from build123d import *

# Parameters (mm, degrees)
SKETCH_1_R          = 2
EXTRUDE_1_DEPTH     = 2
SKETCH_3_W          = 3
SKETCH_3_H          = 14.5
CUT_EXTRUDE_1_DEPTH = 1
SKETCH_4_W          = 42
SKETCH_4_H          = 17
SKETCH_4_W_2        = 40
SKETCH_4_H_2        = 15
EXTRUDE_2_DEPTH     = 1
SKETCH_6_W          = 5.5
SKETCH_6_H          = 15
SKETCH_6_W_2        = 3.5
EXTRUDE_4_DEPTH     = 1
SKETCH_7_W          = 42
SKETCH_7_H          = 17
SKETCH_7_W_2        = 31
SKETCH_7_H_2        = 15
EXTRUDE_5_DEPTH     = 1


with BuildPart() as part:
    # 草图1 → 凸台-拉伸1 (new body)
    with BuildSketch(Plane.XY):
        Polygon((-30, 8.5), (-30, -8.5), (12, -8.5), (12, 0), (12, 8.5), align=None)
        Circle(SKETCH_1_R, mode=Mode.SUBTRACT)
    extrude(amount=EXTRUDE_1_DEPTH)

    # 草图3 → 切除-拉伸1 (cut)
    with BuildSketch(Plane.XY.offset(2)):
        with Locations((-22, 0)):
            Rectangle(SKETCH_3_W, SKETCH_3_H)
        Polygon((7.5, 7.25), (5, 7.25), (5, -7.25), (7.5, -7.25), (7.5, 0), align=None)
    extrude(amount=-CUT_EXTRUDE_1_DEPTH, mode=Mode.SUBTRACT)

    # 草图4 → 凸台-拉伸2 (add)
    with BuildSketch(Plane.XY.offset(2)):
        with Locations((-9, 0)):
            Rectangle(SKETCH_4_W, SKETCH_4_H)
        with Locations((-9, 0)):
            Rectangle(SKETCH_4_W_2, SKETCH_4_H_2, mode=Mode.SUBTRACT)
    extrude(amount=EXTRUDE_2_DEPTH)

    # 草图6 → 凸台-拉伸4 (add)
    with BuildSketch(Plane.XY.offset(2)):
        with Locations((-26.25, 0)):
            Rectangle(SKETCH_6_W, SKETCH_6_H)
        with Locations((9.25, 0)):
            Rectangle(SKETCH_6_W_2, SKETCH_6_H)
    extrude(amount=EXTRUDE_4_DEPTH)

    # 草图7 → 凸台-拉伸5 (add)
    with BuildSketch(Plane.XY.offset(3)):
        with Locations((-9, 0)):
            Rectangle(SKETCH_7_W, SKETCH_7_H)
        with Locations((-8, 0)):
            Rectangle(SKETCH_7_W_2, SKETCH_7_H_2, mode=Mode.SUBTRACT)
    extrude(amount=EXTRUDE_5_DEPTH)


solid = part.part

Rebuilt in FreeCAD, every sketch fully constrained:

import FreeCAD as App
import Part
import Sketcher

V = App.Vector

doc = App.newDocument("Part")
body = doc.addObject("PartDesign::Body", "Body")

sketch1 = body.newObject("Sketcher::SketchObject", "Sketch")
sketch1.AttachmentSupport = (doc.getObject("XY_Plane"), [""])
sketch1.MapMode = "FlatFace"
sketch1.addGeometry([
    Part.LineSegment(V(-30, 8.5, 0), V(-30, -8.5, 0)),
    Part.LineSegment(V(-30, -8.5, 0), V(12, -8.5, 0)),
    Part.LineSegment(V(12, -8.5, 0), V(12, 8.5, 0)),
    Part.LineSegment(V(12, 8.5, 0), V(-30, 8.5, 0)),
    Part.Circle(V(0, 0, 0), V(0, 0, 1), 2),
], False)
sketch1.addConstraint([
    Sketcher.Constraint("Coincident", 0, 2, 1, 1),
    Sketcher.Constraint("Coincident", 1, 2, 2, 1),
    Sketcher.Constraint("Coincident", 2, 2, 3, 1),
    Sketcher.Constraint("Coincident", 3, 2, 0, 1),
    Sketcher.Constraint("Vertical", 0),
    Sketcher.Constraint("Horizontal", 1),
    Sketcher.Constraint("Vertical", 2),
    Sketcher.Constraint("Horizontal", 3),
    Sketcher.Constraint("Coincident", 4, 3, -1, 1),
    Sketcher.Constraint("Diameter", 4, 4.0),
    Sketcher.Constraint("DistanceX", 1, 1, 1, 2, 42.0),
    Sketcher.Constraint("DistanceY", 0, 2, 0, 1, 17.0),
    Sketcher.Constraint("DistanceX", 0, 2, -1, 1, 30.0),
    Sketcher.Constraint("DistanceY", 0, 2, -1, 1, 8.5),
])
pad1 = body.newObject("PartDesign::Pad", "Pad")
pad1.Profile = sketch1
pad1.Length = 2

sketch2 = body.newObject("Sketcher::SketchObject", "Sketch001")
sketch2.AttachmentSupport = (doc.getObject("XY_Plane"), [""])
sketch2.MapMode = "FlatFace"
sketch2.AttachmentOffset = App.Placement(V(0, 0, 2), App.Rotation())
sketch2.addGeometry([
    Part.LineSegment(V(-23.5, 7.2, 0), V(-23.5, -7.2, 0)),
    Part.LineSegment(V(-23.5, -7.2, 0), V(-20.5, -7.2, 0)),
    Part.LineSegment(V(-20.5, -7.2, 0), V(-20.5, 7.2, 0)),
    Part.LineSegment(V(-20.5, 7.2, 0), V(-23.5, 7.2, 0)),
    Part.LineSegment(V(7.5, 7.2, 0), V(5, 7.2, 0)),
    Part.LineSegment(V(5, 7.2, 0), V(5, -7.2, 0)),
    Part.LineSegment(V(5, -7.2, 0), V(7.5, -7.2, 0)),
    Part.LineSegment(V(7.5, -7.2, 0), V(7.5, 7.2, 0)),
], False)
sketch2.addConstraint([
    Sketcher.Constraint("Coincident", 0, 2, 1, 1),
    Sketcher.Constraint("Coincident", 1, 2, 2, 1),
    Sketcher.Constraint("Coincident", 2, 2, 3, 1),
    Sketcher.Constraint("Coincident", 3, 2, 0, 1),
    Sketcher.Constraint("Coincident", 4, 2, 5, 1),
    Sketcher.Constraint("Coincident", 5, 2, 6, 1),
    Sketcher.Constraint("Coincident", 6, 2, 7, 1),
    Sketcher.Constraint("Coincident", 7, 2, 4, 1),
    Sketcher.Constraint("Vertical", 0),
    Sketcher.Constraint("Horizontal", 1),
    Sketcher.Constraint("Vertical", 2),
    Sketcher.Constraint("Horizontal", 3),
    Sketcher.Constraint("Horizontal", 4),
    Sketcher.Constraint("Vertical", 5),
    Sketcher.Constraint("Horizontal", 6),
    Sketcher.Constraint("Vertical", 7),
    Sketcher.Constraint("Horizontal", 3, 2, 4, 2),
    Sketcher.Constraint("Horizontal", 1, 2, 5, 2),
    Sketcher.Constraint("DistanceX", 1, 1, 1, 2, 3.0),
    Sketcher.Constraint("DistanceX", 4, 2, 4, 1, 2.5),
    Sketcher.Constraint("DistanceY", 0, 2, 0, 1, 14.5),
    Sketcher.Constraint("DistanceX", -1, 1, 4, 2, 5.0),
    Sketcher.Constraint("DistanceX", 1, 2, 6, 2, 28.0),
    Sketcher.Constraint("DistanceY", 0, 2, -1, 1, 7.25),
])
pocket1 = body.newObject("PartDesign::Pocket", "Pocket")
pocket1.Profile = sketch2
pocket1.Length = 1

sketch3 = body.newObject("Sketcher::SketchObject", "Sketch002")
sketch3.AttachmentSupport = (doc.getObject("XY_Plane"), [""])
sketch3.MapMode = "FlatFace"
sketch3.AttachmentOffset = App.Placement(V(0, 0, 2), App.Rotation())
sketch3.addGeometry([
    Part.LineSegment(V(-30, 8, 0), V(-30, -8, 0)),
    Part.LineSegment(V(-30, -8, 0), V(12, -8, 0)),
    Part.LineSegment(V(12, -8, 0), V(12, 8, 0)),
    Part.LineSegment(V(12, 8, 0), V(-30, 8, 0)),
    Part.LineSegment(V(11, -8, 0), V(-29, -8, 0)),
    Part.LineSegment(V(-29, -8, 0), V(-29, 8, 0)),
    Part.LineSegment(V(-29, 8, 0), V(11, 8, 0)),
    Part.LineSegment(V(11, 8, 0), V(11, -8, 0)),
], False)
sketch3.addConstraint([
    Sketcher.Constraint("Coincident", 0, 2, 1, 1),
    Sketcher.Constraint("Coincident", 1, 2, 2, 1),
    Sketcher.Constraint("Coincident", 2, 2, 3, 1),
    Sketcher.Constraint("Coincident", 3, 2, 0, 1),
    Sketcher.Constraint("Coincident", 4, 2, 5, 1),
    Sketcher.Constraint("Coincident", 5, 2, 6, 1),
    Sketcher.Constraint("Coincident", 6, 2, 7, 1),
    Sketcher.Constraint("Coincident", 7, 2, 4, 1),
    Sketcher.Constraint("Vertical", 0),
    Sketcher.Constraint("Horizontal", 1),
    Sketcher.Constraint("Vertical", 2),
    Sketcher.Constraint("Horizontal", 3),
    Sketcher.Constraint("Horizontal", 4),
    Sketcher.Constraint("Vertical", 5),
    Sketcher.Constraint("Horizontal", 6),
    Sketcher.Constraint("Vertical", 7),
    Sketcher.Constraint("DistanceX", 1, 1, 1, 2, 42.0),
    Sketcher.Constraint("DistanceX", 4, 2, 4, 1, 40.0),
    Sketcher.Constraint("DistanceY", 0, 2, 0, 1, 17.0),
    Sketcher.Constraint("DistanceY", 5, 1, 5, 2, 15.0),
    Sketcher.Constraint("DistanceX", 0, 2, -1, 1, 30.0),
    Sketcher.Constraint("DistanceX", 4, 2, -1, 1, 29.0),
    Sketcher.Constraint("DistanceY", 0, 2, 4, 2, 1.0),
    Sketcher.Constraint("DistanceY", 0, 2, -1, 1, 8.5),
])
pad2 = body.newObject("PartDesign::Pad", "Pad001")
pad2.Profile = sketch3
pad2.Length = 1

sketch4 = body.newObject("Sketcher::SketchObject", "Sketch003")
sketch4.AttachmentSupport = (doc.getObject("XY_Plane"), [""])
sketch4.MapMode = "FlatFace"
sketch4.AttachmentOffset = App.Placement(V(0, 0, 2), App.Rotation())
sketch4.addGeometry([
    Part.LineSegment(V(-29, 7.5, 0), V(-29, -7.5, 0)),
    Part.LineSegment(V(-29, -7.5, 0), V(-23.5, -7.5, 0)),
    Part.LineSegment(V(-23.5, -7.5, 0), V(-23.5, 7.5, 0)),
    Part.LineSegment(V(-23.5, 7.5, 0), V(-29, 7.5, 0)),
    Part.LineSegment(V(7.5, 7.5, 0), V(7.5, -7.5, 0)),
    Part.LineSegment(V(7.5, -7.5, 0), V(11, -7.5, 0)),
    Part.LineSegment(V(11, -7.5, 0), V(11, 7.5, 0)),
    Part.LineSegment(V(11, 7.5, 0), V(7.5, 7.5, 0)),
], False)
sketch4.addConstraint([
    Sketcher.Constraint("Coincident", 0, 2, 1, 1),
    Sketcher.Constraint("Coincident", 1, 2, 2, 1),
    Sketcher.Constraint("Coincident", 2, 2, 3, 1),
    Sketcher.Constraint("Coincident", 3, 2, 0, 1),
    Sketcher.Constraint("Coincident", 4, 2, 5, 1),
    Sketcher.Constraint("Coincident", 5, 2, 6, 1),
    Sketcher.Constraint("Coincident", 6, 2, 7, 1),
    Sketcher.Constraint("Coincident", 7, 2, 4, 1),
    Sketcher.Constraint("Vertical", 0),
    Sketcher.Constraint("Horizontal", 1),
    Sketcher.Constraint("Vertical", 2),
    Sketcher.Constraint("Horizontal", 3),
    Sketcher.Constraint("Vertical", 4),
    Sketcher.Constraint("Horizontal", 5),
    Sketcher.Constraint("Vertical", 6),
    Sketcher.Constraint("Horizontal", 7),
    Sketcher.Constraint("Horizontal", 1, 2, 4, 2),
    Sketcher.Constraint("Horizontal", 3, 2, 6, 2),
    Sketcher.Constraint("DistanceY", 0, 2, 0, 1, 15.0),
    Sketcher.Constraint("DistanceX", 1, 1, 1, 2, 5.5),
    Sketcher.Constraint("DistanceX", 5, 1, 5, 2, 3.5),
    Sketcher.Constraint("DistanceX", 0, 2, -1, 1, 29.0),
    Sketcher.Constraint("DistanceX", -1, 1, 5, 2, 11.0),
    Sketcher.Constraint("DistanceY", 0, 2, -1, 1, 7.5),
])
pad3 = body.newObject("PartDesign::Pad", "Pad002")
pad3.Profile = sketch4
pad3.Length = 1

sketch5 = body.newObject("Sketcher::SketchObject", "Sketch004")
sketch5.AttachmentSupport = (doc.getObject("XY_Plane"), [""])
sketch5.MapMode = "FlatFace"
sketch5.AttachmentOffset = App.Placement(V(0, 0, 3), App.Rotation())
sketch5.addGeometry([
    Part.LineSegment(V(-30, 8, 0), V(-30, -8, 0)),
    Part.LineSegment(V(-30, -8, 0), V(12, -8, 0)),
    Part.LineSegment(V(12, -8, 0), V(12, 8, 0)),
    Part.LineSegment(V(12, 8, 0), V(-30, 8, 0)),
    Part.LineSegment(V(8, -8, 0), V(-24, -8, 0)),
    Part.LineSegment(V(-24, -8, 0), V(-24, 8, 0)),
    Part.LineSegment(V(-24, 8, 0), V(8, 8, 0)),
    Part.LineSegment(V(8, 8, 0), V(8, -8, 0)),
], False)
sketch5.addConstraint([
    Sketcher.Constraint("Coincident", 0, 2, 1, 1),
    Sketcher.Constraint("Coincident", 1, 2, 2, 1),
    Sketcher.Constraint("Coincident", 2, 2, 3, 1),
    Sketcher.Constraint("Coincident", 3, 2, 0, 1),
    Sketcher.Constraint("Coincident", 4, 2, 5, 1),
    Sketcher.Constraint("Coincident", 5, 2, 6, 1),
    Sketcher.Constraint("Coincident", 6, 2, 7, 1),
    Sketcher.Constraint("Coincident", 7, 2, 4, 1),
    Sketcher.Constraint("Vertical", 0),
    Sketcher.Constraint("Horizontal", 1),
    Sketcher.Constraint("Vertical", 2),
    Sketcher.Constraint("Horizontal", 3),
    Sketcher.Constraint("Horizontal", 4),
    Sketcher.Constraint("Vertical", 5),
    Sketcher.Constraint("Horizontal", 6),
    Sketcher.Constraint("Vertical", 7),
    Sketcher.Constraint("DistanceX", 1, 1, 1, 2, 42.0),
    Sketcher.Constraint("DistanceX", 4, 2, 4, 1, 31.0),
    Sketcher.Constraint("DistanceY", 0, 2, 0, 1, 17.0),
    Sketcher.Constraint("DistanceY", 5, 1, 5, 2, 15.0),
    Sketcher.Constraint("DistanceX", 0, 2, -1, 1, 30.0),
    Sketcher.Constraint("DistanceY", 0, 2, 4, 2, 1.0),
    Sketcher.Constraint("DistanceY", 0, 2, -1, 1, 8.5),
    Sketcher.Constraint("DistanceX", 4, 2, -1, 1, 23.5),
])
pad4 = body.newObject("PartDesign::Pad", "Pad003")
pad4.Profile = sketch5
pad4.Length = 1

doc.recompute()
